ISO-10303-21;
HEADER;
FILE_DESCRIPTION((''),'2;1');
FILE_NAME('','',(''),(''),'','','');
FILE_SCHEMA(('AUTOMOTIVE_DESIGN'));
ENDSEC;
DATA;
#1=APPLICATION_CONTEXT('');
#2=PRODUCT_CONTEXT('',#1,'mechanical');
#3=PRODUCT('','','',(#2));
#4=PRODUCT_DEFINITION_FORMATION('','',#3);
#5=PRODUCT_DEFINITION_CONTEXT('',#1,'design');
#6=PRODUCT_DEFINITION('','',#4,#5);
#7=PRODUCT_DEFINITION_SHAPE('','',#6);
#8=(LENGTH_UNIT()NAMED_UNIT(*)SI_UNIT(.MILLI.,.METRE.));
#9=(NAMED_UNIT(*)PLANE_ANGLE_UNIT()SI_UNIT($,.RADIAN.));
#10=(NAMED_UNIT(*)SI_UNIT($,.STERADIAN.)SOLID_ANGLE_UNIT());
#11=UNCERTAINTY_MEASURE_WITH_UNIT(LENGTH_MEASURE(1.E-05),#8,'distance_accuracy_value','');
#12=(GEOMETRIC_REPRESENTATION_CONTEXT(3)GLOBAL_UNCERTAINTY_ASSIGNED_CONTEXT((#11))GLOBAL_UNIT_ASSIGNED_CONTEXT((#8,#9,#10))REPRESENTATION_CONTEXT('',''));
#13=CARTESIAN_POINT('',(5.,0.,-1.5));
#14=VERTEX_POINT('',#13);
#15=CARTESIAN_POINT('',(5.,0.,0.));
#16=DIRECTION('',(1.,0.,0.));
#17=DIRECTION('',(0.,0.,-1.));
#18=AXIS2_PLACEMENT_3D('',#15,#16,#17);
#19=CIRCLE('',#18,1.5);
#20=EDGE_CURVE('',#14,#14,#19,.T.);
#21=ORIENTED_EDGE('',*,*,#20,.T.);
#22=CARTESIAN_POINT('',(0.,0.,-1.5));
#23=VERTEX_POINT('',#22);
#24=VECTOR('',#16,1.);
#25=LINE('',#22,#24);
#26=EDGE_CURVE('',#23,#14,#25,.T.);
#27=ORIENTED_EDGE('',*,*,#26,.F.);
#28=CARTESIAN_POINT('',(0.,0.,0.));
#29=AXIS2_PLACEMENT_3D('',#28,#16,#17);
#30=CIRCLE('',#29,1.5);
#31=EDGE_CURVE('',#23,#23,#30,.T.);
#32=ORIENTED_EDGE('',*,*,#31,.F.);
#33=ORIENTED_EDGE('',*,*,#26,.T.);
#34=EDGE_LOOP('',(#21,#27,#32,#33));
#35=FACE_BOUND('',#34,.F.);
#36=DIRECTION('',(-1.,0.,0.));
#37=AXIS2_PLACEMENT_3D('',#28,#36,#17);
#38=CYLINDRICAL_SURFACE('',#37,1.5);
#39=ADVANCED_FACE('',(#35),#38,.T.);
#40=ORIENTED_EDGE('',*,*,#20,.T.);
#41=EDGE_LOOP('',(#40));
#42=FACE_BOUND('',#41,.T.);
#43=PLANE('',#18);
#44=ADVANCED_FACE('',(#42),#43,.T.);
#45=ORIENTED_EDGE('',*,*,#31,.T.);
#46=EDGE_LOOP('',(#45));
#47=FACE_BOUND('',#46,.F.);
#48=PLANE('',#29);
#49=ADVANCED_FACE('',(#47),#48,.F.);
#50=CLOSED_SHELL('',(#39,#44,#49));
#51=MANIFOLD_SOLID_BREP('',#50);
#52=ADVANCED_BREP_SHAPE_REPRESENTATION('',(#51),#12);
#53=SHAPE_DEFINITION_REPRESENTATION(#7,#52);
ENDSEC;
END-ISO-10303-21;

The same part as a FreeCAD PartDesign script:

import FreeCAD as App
import Part
import Sketcher

V = App.Vector

doc = App.newDocument("Part")
body = doc.addObject("PartDesign::Body", "Body")

sketch1 = body.newObject("Sketcher::SketchObject", "Sketch")
sketch1.AttachmentSupport = (doc.getObject("YZ_Plane"), [""])
sketch1.MapMode = "FlatFace"
sketch1.addGeometry(Part.Circle(V(0, 0, 0), V(0, 0, 1), 1.5), False)
sketch1.addConstraint([
    Sketcher.Constraint("Coincident", 0, 3, -1, 1),
    Sketcher.Constraint("Diameter", 0, 3.0),
])
pad1 = body.newObject("PartDesign::Pad", "Pad")
pad1.Profile = sketch1
pad1.Length = 5

doc.recompute()
